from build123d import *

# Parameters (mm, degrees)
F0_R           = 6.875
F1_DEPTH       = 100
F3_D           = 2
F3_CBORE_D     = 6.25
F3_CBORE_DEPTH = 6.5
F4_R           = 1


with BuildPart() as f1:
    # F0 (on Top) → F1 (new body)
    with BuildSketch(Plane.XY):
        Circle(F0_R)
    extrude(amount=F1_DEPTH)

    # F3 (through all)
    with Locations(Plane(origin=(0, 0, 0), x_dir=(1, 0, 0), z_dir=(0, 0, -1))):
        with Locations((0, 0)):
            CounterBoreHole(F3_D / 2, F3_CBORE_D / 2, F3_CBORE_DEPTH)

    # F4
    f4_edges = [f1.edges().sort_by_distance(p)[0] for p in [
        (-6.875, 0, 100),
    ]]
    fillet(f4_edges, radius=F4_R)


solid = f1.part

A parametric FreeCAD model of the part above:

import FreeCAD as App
import Part
import Sketcher


def edges_at(feature, points):
    """Names of the edges that pass closest to the given points."""
    edges = feature.Shape.Edges
    near = lambda p: min(range(len(edges)), key=lambda i: edges[i].distToShape(Part.Vertex(*p))[0])
    return sorted({f"Edge{near(p) + 1}" for p in points})

doc = App.newDocument("Part")
body = doc.addObject("PartDesign::Body", "Body")

sketch1 = body.newObject("Sketcher::SketchObject", "Sketch")
sketch1.AttachmentSupport = (doc.getObject("XY_Plane"), [""])
sketch1.MapMode = "FlatFace"
sketch1.addGeometry(Part.Circle(App.Vector(0, 0, 0), App.Vector(0, 0, 1), 7), False)
sketch1.addConstraint([
    Sketcher.Constraint("Coincident", 0, 3, -1, 1),
    Sketcher.Constraint("Diameter", 0, 13.75),
])
pad1 = body.newObject("PartDesign::Pad", "Pad")
pad1.Profile = sketch1
pad1.Length = 100

sketch2 = body.newObject("Sketcher::SketchObject", "Sketch001")
sketch2.AttachmentSupport = (doc.getObject("XY_Plane"), [""])
sketch2.MapMode = "FlatFace"
sketch2.addGeometry(Part.Circle(App.Vector(0, 0, 0), App.Vector(0, 0, 1), 1), False)
sketch2.addConstraint([
    Sketcher.Constraint("Coincident", 0, 3, -1, 1),
    Sketcher.Constraint("Diameter", 0, 2.0),
])
doc.recompute()
hole = body.newObject("PartDesign::Hole", "Hole")
hole.Profile = sketch2
hole.ThreadType = "None"
hole.Diameter = 2
hole.DepthType = "ThroughAll"
hole.HoleCutType = "Counterbore"
hole.HoleCutDiameter = 6.25
hole.HoleCutDepth = 6.5
hole.Reversed = True
doc.recompute()

fillet = body.newObject("PartDesign::Fillet", "Fillet")
fillet.Base = (hole, edges_at(hole, [(-6.875, 0, 100)]))
fillet.Radius = 1

doc.recompute()
